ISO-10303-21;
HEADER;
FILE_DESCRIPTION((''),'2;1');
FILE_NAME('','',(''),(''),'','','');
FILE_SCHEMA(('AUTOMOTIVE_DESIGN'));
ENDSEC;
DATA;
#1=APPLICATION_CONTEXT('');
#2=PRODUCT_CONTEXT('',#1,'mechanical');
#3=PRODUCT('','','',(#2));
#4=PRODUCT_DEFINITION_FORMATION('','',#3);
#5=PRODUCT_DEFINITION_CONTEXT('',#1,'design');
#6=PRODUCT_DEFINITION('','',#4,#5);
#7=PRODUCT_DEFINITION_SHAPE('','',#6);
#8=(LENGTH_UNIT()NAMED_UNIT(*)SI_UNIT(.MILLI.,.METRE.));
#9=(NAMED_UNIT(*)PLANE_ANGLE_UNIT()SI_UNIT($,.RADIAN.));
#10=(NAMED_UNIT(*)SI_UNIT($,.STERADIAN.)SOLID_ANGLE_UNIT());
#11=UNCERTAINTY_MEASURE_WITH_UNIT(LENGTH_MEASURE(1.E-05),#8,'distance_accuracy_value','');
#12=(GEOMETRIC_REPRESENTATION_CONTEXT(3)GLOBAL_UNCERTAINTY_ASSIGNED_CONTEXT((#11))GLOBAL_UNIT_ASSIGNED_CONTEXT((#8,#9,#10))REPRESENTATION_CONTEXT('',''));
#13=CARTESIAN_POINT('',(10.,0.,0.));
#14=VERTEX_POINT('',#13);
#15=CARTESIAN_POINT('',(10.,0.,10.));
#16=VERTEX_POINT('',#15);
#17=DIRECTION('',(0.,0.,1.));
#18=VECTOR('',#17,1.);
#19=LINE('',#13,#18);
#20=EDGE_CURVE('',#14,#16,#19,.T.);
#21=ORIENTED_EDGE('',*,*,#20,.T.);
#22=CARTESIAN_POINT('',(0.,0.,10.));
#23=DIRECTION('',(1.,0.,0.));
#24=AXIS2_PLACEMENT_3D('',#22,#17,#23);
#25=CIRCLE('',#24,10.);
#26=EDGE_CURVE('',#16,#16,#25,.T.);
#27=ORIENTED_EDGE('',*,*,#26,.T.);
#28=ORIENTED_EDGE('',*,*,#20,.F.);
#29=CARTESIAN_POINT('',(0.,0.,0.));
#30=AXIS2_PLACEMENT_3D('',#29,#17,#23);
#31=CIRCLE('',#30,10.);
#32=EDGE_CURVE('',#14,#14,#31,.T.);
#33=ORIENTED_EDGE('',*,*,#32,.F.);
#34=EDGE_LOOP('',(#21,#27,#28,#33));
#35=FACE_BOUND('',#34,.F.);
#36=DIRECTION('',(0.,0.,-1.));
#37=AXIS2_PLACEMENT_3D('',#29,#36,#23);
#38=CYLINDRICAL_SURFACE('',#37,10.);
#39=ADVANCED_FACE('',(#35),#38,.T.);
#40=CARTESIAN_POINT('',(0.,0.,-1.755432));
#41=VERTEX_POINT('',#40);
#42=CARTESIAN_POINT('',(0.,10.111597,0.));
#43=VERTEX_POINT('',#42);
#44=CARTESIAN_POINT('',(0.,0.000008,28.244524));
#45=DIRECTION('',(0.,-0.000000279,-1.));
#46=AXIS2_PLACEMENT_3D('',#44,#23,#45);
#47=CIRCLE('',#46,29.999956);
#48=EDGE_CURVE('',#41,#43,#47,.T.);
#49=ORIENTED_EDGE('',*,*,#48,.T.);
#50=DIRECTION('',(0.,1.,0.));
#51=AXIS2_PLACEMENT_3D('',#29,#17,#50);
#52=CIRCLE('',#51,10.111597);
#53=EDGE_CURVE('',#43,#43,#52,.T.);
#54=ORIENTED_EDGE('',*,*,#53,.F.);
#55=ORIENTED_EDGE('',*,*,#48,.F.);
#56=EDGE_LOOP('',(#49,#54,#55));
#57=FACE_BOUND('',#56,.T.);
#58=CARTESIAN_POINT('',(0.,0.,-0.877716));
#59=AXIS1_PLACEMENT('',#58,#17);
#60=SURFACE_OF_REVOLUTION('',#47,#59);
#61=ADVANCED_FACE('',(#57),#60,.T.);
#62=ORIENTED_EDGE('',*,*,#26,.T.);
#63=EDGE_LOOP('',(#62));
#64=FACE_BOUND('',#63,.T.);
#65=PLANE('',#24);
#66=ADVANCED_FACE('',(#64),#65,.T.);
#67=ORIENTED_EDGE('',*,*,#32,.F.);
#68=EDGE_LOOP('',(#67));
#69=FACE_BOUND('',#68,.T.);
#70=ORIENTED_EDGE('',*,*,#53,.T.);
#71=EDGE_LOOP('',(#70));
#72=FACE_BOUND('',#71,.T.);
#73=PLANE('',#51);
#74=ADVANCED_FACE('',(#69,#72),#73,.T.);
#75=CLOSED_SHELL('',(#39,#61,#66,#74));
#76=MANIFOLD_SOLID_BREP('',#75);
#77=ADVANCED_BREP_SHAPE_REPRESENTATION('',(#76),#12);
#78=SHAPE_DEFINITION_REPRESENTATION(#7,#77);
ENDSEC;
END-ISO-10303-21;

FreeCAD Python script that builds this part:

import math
import FreeCAD as App
import Part
import Sketcher

V = App.Vector

doc = App.newDocument("Part")
body = doc.addObject("PartDesign::Body", "Body")

# Sketch on XY plane
sketch1 = body.newObject("Sketcher::SketchObject", "Sketch")
sketch1.AttachmentSupport = (doc.getObject("XY_Plane"), [""])
sketch1.MapMode = "FlatFace"
sketch1.addGeometry(Part.Circle(V(0, 0, 0), V(0, 0, 1), 10), False)
sketch1.addConstraint(Sketcher.Constraint("Coincident", 0, 3, -1, 1))
sketch1.addConstraint(Sketcher.Constraint("Diameter", 0, 20.0))
pad1 = body.newObject("PartDesign::Pad", "Pad")
pad1.Profile = sketch1
pad1.Length = 10

# Sketch on YZ plane
sketch2 = body.newObject("Sketcher::SketchObject", "Sketch001")
sketch2.AttachmentSupport = (doc.getObject("YZ_Plane"), [""])
sketch2.MapMode = "FlatFace"
sketch2.addGeometry(Part.ArcOfCircle(Part.Circle(V(0, 28.2, 0), V(0, 0, 1), 30), math.radians(-90), math.radians(-70.3)), False)
sketch2.addGeometry(Part.LineSegment(V(10.1, 0, 0), V(0, 0, 0)), False)
sketch2.addGeometry(Part.LineSegment(V(0, 0, 0), V(0, -1.8, 0)), False)
sketch2.addConstraint(Sketcher.Constraint("Coincident", 0, 2, 1, 1))
sketch2.addConstraint(Sketcher.Constraint("Coincident", 1, 2, 2, 1))
sketch2.addConstraint(Sketcher.Constraint("Coincident", 2, 2, 0, 1))
sketch2.addConstraint(Sketcher.Constraint("Horizontal", 1))
sketch2.addConstraint(Sketcher.Constraint("Vertical", 2))
sketch2.addConstraint(Sketcher.Constraint("Coincident", 1, 2, -1, 1))
sketch2.addConstraint(Sketcher.Constraint("Radius", 0, 29.999956))
sketch2.addConstraint(Sketcher.Constraint("DistanceX", 1, 2, 1, 1, 10.111597))
sketch2.addConstraint(Sketcher.Constraint("DistanceY", 2, 2, 2, 1, 1.755432))
revolution = body.newObject("PartDesign::Revolution", "Revolution")
revolution.Profile = sketch2
revolution.ReferenceAxis = (sketch2, ["V_Axis"])
revolution.Angle = 360

doc.recompute()
